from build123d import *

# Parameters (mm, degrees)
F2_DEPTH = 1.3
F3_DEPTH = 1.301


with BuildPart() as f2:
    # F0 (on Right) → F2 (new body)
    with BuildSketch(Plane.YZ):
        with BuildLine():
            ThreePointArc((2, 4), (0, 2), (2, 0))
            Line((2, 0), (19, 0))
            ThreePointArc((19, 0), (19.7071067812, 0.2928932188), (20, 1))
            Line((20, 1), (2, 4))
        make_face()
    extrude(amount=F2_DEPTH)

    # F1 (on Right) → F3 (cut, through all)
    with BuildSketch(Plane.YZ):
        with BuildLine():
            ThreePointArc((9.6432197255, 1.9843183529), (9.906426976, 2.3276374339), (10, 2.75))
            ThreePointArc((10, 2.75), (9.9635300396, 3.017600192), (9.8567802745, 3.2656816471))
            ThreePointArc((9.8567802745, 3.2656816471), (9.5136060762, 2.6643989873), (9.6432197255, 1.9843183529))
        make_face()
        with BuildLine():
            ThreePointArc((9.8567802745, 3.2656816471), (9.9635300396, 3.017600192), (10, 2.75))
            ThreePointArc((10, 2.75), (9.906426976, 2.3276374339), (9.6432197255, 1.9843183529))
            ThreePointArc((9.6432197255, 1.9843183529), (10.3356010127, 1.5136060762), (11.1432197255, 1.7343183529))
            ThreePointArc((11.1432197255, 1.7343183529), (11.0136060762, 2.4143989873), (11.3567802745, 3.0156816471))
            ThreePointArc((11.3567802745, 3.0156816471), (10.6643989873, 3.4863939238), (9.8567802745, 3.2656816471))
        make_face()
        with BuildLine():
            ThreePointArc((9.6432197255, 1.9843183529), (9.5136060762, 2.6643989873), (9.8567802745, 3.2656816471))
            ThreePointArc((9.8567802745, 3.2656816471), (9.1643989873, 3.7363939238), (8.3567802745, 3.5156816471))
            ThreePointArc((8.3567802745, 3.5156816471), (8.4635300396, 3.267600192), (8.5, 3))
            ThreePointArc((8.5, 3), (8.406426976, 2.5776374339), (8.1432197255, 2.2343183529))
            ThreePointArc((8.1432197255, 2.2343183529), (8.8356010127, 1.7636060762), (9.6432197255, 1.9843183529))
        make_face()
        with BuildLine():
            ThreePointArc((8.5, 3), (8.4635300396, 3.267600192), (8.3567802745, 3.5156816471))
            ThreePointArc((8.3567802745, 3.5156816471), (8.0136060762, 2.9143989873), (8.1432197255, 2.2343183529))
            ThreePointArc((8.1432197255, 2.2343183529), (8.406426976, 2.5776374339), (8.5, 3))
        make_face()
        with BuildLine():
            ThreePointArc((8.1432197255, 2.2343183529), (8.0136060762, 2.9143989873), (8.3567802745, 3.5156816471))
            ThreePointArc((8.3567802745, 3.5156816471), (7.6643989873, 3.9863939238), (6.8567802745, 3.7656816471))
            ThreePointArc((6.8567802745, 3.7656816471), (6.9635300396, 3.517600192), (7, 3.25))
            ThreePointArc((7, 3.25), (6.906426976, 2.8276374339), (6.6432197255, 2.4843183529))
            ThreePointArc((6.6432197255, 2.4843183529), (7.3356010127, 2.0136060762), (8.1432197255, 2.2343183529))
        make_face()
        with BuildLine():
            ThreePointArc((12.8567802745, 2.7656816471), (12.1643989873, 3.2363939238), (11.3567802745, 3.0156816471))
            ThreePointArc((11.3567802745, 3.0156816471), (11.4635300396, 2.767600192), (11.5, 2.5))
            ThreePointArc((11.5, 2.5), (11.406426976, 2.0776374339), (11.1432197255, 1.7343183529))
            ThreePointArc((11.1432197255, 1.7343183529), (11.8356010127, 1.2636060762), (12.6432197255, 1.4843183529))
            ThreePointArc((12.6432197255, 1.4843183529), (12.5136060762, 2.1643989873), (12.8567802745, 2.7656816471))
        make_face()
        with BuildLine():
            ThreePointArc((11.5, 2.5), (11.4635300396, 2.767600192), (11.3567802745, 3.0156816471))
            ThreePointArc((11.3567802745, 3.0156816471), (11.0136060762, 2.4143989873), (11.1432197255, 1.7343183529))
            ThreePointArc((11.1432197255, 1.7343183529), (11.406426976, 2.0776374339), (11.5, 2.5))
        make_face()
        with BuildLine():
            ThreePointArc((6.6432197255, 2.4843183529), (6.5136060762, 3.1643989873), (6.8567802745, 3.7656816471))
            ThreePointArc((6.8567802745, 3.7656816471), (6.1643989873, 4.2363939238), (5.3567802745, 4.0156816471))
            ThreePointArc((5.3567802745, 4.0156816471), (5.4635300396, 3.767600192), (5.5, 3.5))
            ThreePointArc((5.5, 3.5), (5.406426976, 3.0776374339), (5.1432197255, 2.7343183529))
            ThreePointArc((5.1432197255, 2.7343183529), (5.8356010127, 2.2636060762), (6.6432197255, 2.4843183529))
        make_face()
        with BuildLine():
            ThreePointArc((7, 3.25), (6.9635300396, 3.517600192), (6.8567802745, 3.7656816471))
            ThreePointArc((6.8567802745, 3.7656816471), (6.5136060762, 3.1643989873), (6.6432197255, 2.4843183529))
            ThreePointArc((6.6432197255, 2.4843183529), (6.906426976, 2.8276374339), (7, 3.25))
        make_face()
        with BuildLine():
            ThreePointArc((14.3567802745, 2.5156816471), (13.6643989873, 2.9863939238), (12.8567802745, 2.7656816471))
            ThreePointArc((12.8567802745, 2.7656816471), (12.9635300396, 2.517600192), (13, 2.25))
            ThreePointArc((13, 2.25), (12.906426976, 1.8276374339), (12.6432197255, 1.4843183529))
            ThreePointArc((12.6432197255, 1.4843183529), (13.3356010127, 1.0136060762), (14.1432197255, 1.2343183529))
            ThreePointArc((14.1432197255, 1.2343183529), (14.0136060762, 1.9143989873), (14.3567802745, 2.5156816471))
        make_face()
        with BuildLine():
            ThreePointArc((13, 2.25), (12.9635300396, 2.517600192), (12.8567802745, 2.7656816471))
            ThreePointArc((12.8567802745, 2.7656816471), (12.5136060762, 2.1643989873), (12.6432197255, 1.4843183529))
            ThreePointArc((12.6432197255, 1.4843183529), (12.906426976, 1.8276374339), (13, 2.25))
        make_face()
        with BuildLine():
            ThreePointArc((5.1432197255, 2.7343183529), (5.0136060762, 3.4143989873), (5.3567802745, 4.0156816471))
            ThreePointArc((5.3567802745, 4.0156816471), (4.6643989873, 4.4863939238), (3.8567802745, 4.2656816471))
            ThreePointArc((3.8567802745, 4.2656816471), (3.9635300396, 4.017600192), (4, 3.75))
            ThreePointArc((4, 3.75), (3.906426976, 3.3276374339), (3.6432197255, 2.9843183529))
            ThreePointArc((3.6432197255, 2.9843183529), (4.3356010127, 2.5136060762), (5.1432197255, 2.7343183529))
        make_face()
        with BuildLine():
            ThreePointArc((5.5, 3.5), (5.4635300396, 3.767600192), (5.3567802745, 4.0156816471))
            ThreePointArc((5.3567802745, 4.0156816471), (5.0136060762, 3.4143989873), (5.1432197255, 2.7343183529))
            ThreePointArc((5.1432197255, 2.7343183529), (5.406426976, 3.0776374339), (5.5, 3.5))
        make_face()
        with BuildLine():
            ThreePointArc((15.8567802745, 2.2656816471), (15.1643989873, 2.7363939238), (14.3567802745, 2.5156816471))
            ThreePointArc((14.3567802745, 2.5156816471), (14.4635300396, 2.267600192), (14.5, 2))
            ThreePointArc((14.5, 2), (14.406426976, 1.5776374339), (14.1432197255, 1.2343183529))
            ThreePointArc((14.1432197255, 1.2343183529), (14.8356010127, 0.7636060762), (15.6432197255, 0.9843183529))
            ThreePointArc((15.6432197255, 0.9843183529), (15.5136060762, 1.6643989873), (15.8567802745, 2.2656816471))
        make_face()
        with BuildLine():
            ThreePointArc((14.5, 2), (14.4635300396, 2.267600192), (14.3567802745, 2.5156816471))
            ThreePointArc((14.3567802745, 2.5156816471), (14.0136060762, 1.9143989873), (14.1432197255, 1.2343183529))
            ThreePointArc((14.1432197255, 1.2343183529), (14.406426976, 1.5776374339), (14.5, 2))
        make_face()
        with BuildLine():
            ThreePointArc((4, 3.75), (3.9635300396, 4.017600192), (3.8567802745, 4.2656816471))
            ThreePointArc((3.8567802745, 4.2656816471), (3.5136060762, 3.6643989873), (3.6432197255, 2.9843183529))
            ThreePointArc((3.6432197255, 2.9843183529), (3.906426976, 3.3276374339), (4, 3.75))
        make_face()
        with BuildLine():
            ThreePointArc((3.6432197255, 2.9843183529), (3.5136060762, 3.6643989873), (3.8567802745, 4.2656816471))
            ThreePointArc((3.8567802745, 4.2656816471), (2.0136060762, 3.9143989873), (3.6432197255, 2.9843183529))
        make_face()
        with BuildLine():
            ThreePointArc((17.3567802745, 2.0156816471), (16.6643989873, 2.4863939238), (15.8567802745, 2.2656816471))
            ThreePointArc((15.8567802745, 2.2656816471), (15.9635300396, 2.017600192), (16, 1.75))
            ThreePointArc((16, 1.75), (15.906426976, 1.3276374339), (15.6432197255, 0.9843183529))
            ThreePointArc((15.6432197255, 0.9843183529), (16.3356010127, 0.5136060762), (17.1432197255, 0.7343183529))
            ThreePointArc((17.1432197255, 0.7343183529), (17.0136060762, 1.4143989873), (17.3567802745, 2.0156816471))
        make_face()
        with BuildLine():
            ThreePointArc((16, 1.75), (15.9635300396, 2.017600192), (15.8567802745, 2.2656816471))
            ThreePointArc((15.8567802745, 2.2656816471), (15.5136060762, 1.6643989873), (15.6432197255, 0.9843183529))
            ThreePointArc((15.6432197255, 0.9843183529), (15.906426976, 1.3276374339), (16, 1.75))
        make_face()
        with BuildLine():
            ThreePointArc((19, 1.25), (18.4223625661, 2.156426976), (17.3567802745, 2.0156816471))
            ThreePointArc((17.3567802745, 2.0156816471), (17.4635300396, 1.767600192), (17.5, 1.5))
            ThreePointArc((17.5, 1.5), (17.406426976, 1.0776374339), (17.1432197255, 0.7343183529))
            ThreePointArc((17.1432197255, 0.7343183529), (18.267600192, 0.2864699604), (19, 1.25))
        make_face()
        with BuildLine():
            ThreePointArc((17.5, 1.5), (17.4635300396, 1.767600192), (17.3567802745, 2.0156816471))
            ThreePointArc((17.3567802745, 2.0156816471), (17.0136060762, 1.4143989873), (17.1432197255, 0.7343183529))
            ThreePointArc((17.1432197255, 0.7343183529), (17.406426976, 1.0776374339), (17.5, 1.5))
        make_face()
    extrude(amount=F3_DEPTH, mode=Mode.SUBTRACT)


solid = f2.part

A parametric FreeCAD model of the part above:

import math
import FreeCAD as App
import Part
import Sketcher
Q = App.Units.Quantity

doc = App.newDocument("Part")
body = doc.addObject("PartDesign::Body", "Body")

sketch1 = body.newObject("Sketcher::SketchObject", "Sketch")
sketch1.AttachmentSupport = (doc.getObject("YZ_Plane"), [""])
sketch1.MapMode = "FlatFace"
sketch1.addGeometry(Part.ArcOfCircle(Part.Circle(App.Vector(2, 2, 0), App.Vector(0, 0, 1), 2), math.radians(90), math.radians(270)), False)
sketch1.addGeometry(Part.LineSegment(App.Vector(2, 0, 0), App.Vector(19, 0, 0)), False)
sketch1.addGeometry(Part.ArcOfCircle(Part.Circle(App.Vector(19, 1, 0), App.Vector(0, 0, 1), 1), math.radians(-90), math.radians(0)), False)
sketch1.addGeometry(Part.LineSegment(App.Vector(20, 1, 0), App.Vector(2, 4, 0)), False)
sketch1.addConstraint(Sketcher.Constraint("Tangent", 0, 2, 1, 1))
sketch1.addConstraint(Sketcher.Constraint("Tangent", 1, 2, 2, 1))
sketch1.addConstraint(Sketcher.Constraint("Coincident", 2, 2, 3, 1))
sketch1.addConstraint(Sketcher.Constraint("Coincident", 3, 2, 0, 1))
sketch1.addConstraint(Sketcher.Constraint("Horizontal", 1))
sketch1.addConstraint(Sketcher.Constraint("PointOnObject", 0, 2, -1))
sketch1.addConstraint(Sketcher.Constraint("Vertical", 0, 2, 3, 2))
sketch1.addConstraint(Sketcher.Constraint("Radius", 0, Q("2 mm")))
sketch1.addConstraint(Sketcher.Constraint("Radius", 2, Q("1 mm")))
sketch1.addConstraint(Sketcher.Constraint("DistanceX", 1, 1, 1, 2, Q("17 mm")))
sketch1.addConstraint(Sketcher.Constraint("DistanceX", -1, 1, 0, 3, Q("2 mm")))
sketch1.addConstraint(Sketcher.Constraint("DistanceY", -1, 1, 2, 2, Q("1 mm")))
pad1 = body.newObject("PartDesign::Pad", "Pad")
pad1.Profile = sketch1
pad1.Length = 1.3

sketch2 = body.newObject("Sketcher::SketchObject", "Sketch001")
sketch2.AttachmentSupport = (doc.getObject("YZ_Plane"), [""])
sketch2.MapMode = "FlatFace"
sketch2.addGeometry(Part.ArcOfCircle(Part.Circle(App.Vector(10.5, 2.5, 0), App.Vector(0, 0, 1), 1), math.radians(-149), math.radians(-50)), False)
sketch2.addGeometry(Part.ArcOfCircle(Part.Circle(App.Vector(12, 2.2, 0), App.Vector(0, 0, 1), 1), math.radians(-149), math.radians(-50)), False)
sketch2.addGeometry(Part.ArcOfCircle(Part.Circle(App.Vector(13.5, 2, 0), App.Vector(0, 0, 1), 1), math.radians(-149), math.radians(-50)), False)
sketch2.addGeometry(Part.ArcOfCircle(Part.Circle(App.Vector(15, 1.8, 0), App.Vector(0, 0, 1), 1), math.radians(-149), math.radians(-50)), False)
sketch2.addGeometry(Part.ArcOfCircle(Part.Circle(App.Vector(16.5, 1.5, 0), App.Vector(0, 0, 1), 1), math.radians(-149), math.radians(-50)), False)
sketch2.addGeometry(Part.ArcOfCircle(Part.Circle(App.Vector(18, 1.2, 0), App.Vector(0, 0, 1), 1), math.radians(-149), math.radians(0)), False)
sketch2.addGeometry(Part.ArcOfCircle(Part.Circle(App.Vector(18, 1.2, 0), App.Vector(0, 0, 1), 1), math.radians(0), math.radians(130)), False)
sketch2.addGeometry(Part.ArcOfCircle(Part.Circle(App.Vector(16.5, 1.5, 0), App.Vector(0, 0, 1), 1), math.radians(31), math.radians(130)), False)
sketch2.addGeometry(Part.ArcOfCircle(Part.Circle(App.Vector(15, 1.8, 0), App.Vector(0, 0, 1), 1), math.radians(31), math.radians(130)), False)
sketch2.addGeometry(Part.ArcOfCircle(Part.Circle(App.Vector(13.5, 2, 0), App.Vector(0, 0, 1), 1), math.radians(31), math.radians(130)), False)
sketch2.addGeometry(Part.ArcOfCircle(Part.Circle(App.Vector(12, 2.2, 0), App.Vector(0, 0, 1), 1), math.radians(31), math.radians(130)), False)
sketch2.addGeometry(Part.ArcOfCircle(Part.Circle(App.Vector(10.5, 2.5, 0), App.Vector(0, 0, 1), 1), math.radians(31), math.radians(130)), False)
sketch2.addGeometry(Part.ArcOfCircle(Part.Circle(App.Vector(9, 2.8, 0), App.Vector(0, 0, 1), 1), math.radians(31), math.radians(130)), False)
sketch2.addGeometry(Part.ArcOfCircle(Part.Circle(App.Vector(7.5, 3, 0), App.Vector(0, 0, 1), 1), math.radians(31), math.radians(130)), False)
sketch2.addGeometry(Part.ArcOfCircle(Part.Circle(App.Vector(6, 3.2, 0), App.Vector(0, 0, 1), 1), math.radians(31), math.radians(130)), False)
sketch2.addGeometry(Part.ArcOfCircle(Part.Circle(App.Vector(4.5, 3.5, 0), App.Vector(0, 0, 1), 1), math.radians(31), math.radians(130)), False)
sketch2.addGeometry(Part.ArcOfCircle(Part.Circle(App.Vector(3, 3.8, 0), App.Vector(0, 0, 1), 1), math.radians(31), math.radians(310)), False)
sketch2.addGeometry(Part.ArcOfCircle(Part.Circle(App.Vector(4.5, 3.5, 0), App.Vector(0, 0, 1), 1), math.radians(-149), math.radians(-50)), False)
sketch2.addGeometry(Part.ArcOfCircle(Part.Circle(App.Vector(6, 3.2, 0), App.Vector(0, 0, 1), 1), math.radians(-149), math.radians(-50)), False)
sketch2.addGeometry(Part.ArcOfCircle(Part.Circle(App.Vector(7.5, 3, 0), App.Vector(0, 0, 1), 1), math.radians(-149), math.radians(-50)), False)
sketch2.addGeometry(Part.ArcOfCircle(Part.Circle(App.Vector(9, 2.8, 0), App.Vector(0, 0, 1), 1), math.radians(-149), math.radians(-50)), False)
sketch2.addConstraint(Sketcher.Constraint("Coincident", 0, 2, 1, 1))
sketch2.addConstraint(Sketcher.Constraint("Coincident", 1, 2, 2, 1))
sketch2.addConstraint(Sketcher.Constraint("Coincident", 2, 2, 3, 1))
sketch2.addConstraint(Sketcher.Constraint("Coincident", 3, 2, 4, 1))
sketch2.addConstraint(Sketcher.Constraint("Coincident", 4, 2, 5, 1))
sketch2.addConstraint(Sketcher.Constraint("Tangent", 5, 2, 6, 1))
sketch2.addConstraint(Sketcher.Constraint("Coincident", 6, 2, 7, 1))
sketch2.addConstraint(Sketcher.Constraint("Coincident", 7, 2, 8, 1))
sketch2.addConstraint(Sketcher.Constraint("Coincident", 8, 2, 9, 1))
sketch2.addConstraint(Sketcher.Constraint("Coincident", 9, 2, 10, 1))
sketch2.addConstraint(Sketcher.Constraint("Coincident", 10, 2, 11, 1))
sketch2.addConstraint(Sketcher.Constraint("Coincident", 11, 2, 12, 1))
sketch2.addConstraint(Sketcher.Constraint("Coincident", 12, 2, 13, 1))
sketch2.addConstraint(Sketcher.Constraint("Coincident", 13, 2, 14, 1))
sketch2.addConstraint(Sketcher.Constraint("Coincident", 14, 2, 15, 1))
sketch2.addConstraint(Sketcher.Constraint("Coincident", 15, 2, 16, 1))
sketch2.addConstraint(Sketcher.Constraint("Coincident", 16, 2, 17, 1))
sketch2.addConstraint(Sketcher.Constraint("Coincident", 17, 2, 18, 1))
sketch2.addConstraint(Sketcher.Constraint("Coincident", 18, 2, 19, 1))
sketch2.addConstraint(Sketcher.Constraint("Coincident", 19, 2, 20, 1))
sketch2.addConstraint(Sketcher.Constraint("Coincident", 20, 2, 0, 1))
sketch2.addConstraint(Sketcher.Constraint("Coincident", 7, 3, 4, 3))
sketch2.addConstraint(Sketcher.Constraint("Coincident", 8, 3, 3, 3))
sketch2.addConstraint(Sketcher.Constraint("Coincident", 9, 3, 2, 3))
sketch2.addConstraint(Sketcher.Constraint("Coincident", 10, 3, 1, 3))
sketch2.addConstraint(Sketcher.Constraint("Coincident", 11, 3, 0, 3))
sketch2.addConstraint(Sketcher.Constraint("Coincident", 17, 3, 15, 3))
sketch2.addConstraint(Sketcher.Constraint("Coincident", 18, 3, 14, 3))
sketch2.addConstraint(Sketcher.Constraint("Coincident", 19, 3, 13, 3))
sketch2.addConstraint(Sketcher.Constraint("Coincident", 20, 3, 12, 3))
sketch2.addConstraint(Sketcher.Constraint("Equal", 0, 1))
sketch2.addConstraint(Sketcher.Constraint("Equal", 1, 2))
sketch2.addConstraint(Sketcher.Constraint("Equal", 2, 3))
sketch2.addConstraint(Sketcher.Constraint("Equal", 3, 4))
sketch2.addConstraint(Sketcher.Constraint("Equal", 4, 5))
sketch2.addConstraint(Sketcher.Constraint("Equal", 5, 6))
sketch2.addConstraint(Sketcher.Constraint("Equal", 6, 7))
sketch2.addConstraint(Sketcher.Constraint("Equal", 7, 8))
sketch2.addConstraint(Sketcher.Constraint("Equal", 8, 9))
sketch2.addConstraint(Sketcher.Constraint("Equal", 9, 10))
sketch2.addConstraint(Sketcher.Constraint("Equal", 10, 11))
sketch2.addConstraint(Sketcher.Constraint("Equal", 11, 12))
sketch2.addConstraint(Sketcher.Constraint("Equal", 12, 13))
sketch2.addConstraint(Sketcher.Constraint("Equal", 13, 14))
sketch2.addConstraint(Sketcher.Constraint("Equal", 14, 15))
sketch2.addConstraint(Sketcher.Constraint("Equal", 15, 16))
sketch2.addConstraint(Sketcher.Constraint("Equal", 16, 17))
sketch2.addConstraint(Sketcher.Constraint("Equal", 17, 18))
sketch2.addConstraint(Sketcher.Constraint("Equal", 18, 19))
sketch2.addConstraint(Sketcher.Constraint("Equal", 19, 20))
sketch2.addConstraint(Sketcher.Constraint("Horizontal", 6, 3, 5, 2))
sketch2.addConstraint(Sketcher.Constraint("Radius", 0, Q("1 mm")))
sketch2.addConstraint(Sketcher.Constraint("DistanceX", -1, 1, 1, 3, Q("12 mm")))
sketch2.addConstraint(Sketcher.Constraint("DistanceY", -1, 1, 2, 3, Q("2 mm")))
sketch2.addConstraint(Sketcher.Constraint("DistanceX", -1, 1, 3, 3, Q("15 mm")))
sketch2.addConstraint(Sketcher.Constraint("DistanceX", -1, 1, 5, 3, Q("18 mm")))
sketch2.addConstraint(Sketcher.Constraint("DistanceX", -1, 1, 12, 3, Q("9 mm")))
sketch2.addConstraint(Sketcher.Constraint("DistanceY", -1, 1, 13, 3, Q("3 mm")))
sketch2.addConstraint(Sketcher.Constraint("DistanceX", -1, 1, 14, 3, Q("6 mm")))
sketch2.addConstraint(Sketcher.Constraint("DistanceX", -1, 1, 16, 3, Q("3 mm")))
sketch2.addConstraint(Sketcher.Constraint("DistanceX", 0, 3, 2, 3, Q("3 mm")))
sketch2.addConstraint(Sketcher.Constraint("DistanceX", 2, 3, 4, 3, Q("3 mm")))
sketch2.addConstraint(Sketcher.Constraint("DistanceY", 4, 3, 0, 3, Q("1 mm")))
sketch2.addConstraint(Sketcher.Constraint("DistanceY", 5, 3, 1, 3, Q("1 mm")))
sketch2.addConstraint(Sketcher.Constraint("DistanceX", 13, 3, 0, 3, Q("3 mm")))
sketch2.addConstraint(Sketcher.Constraint("DistanceY", 1, 3, 14, 3, Q("1 mm")))
sketch2.addConstraint(Sketcher.Constraint("DistanceX", 15, 3, 13, 3, Q("3 mm")))
sketch2.addConstraint(Sketcher.Constraint("DistanceY", 0, 3, 15, 3, Q("1 mm")))
sketch2.addConstraint(Sketcher.Constraint("DistanceY", 12, 3, 16, 3, Q("1 mm")))
sketch2.addConstraint(Sketcher.Constraint("DistanceX", -1, 1, 0, 3, Q("10.5 mm")))
sketch2.addConstraint(Sketcher.Constraint("DistanceY", -1, 1, 0, 3, Q("2.5 mm")))
sketch2.addConstraint(Sketcher.Constraint("DistanceY", 3, 3, 1, 3, Q("0.5 mm")))
sketch2.addConstraint(Sketcher.Constraint("DistanceY", 1, 3, 12, 3, Q("0.5 mm")))
sketch2.addConstraint(Sketcher.Constraint("DistanceX", 0, 2, 1, 2, Q("1.5 mm")))
pocket1 = body.newObject("PartDesign::Pocket", "Pocket")
pocket1.Profile = sketch2
pocket1.Type = "ThroughAll"
pocket1.Reversed = True

doc.recompute()
